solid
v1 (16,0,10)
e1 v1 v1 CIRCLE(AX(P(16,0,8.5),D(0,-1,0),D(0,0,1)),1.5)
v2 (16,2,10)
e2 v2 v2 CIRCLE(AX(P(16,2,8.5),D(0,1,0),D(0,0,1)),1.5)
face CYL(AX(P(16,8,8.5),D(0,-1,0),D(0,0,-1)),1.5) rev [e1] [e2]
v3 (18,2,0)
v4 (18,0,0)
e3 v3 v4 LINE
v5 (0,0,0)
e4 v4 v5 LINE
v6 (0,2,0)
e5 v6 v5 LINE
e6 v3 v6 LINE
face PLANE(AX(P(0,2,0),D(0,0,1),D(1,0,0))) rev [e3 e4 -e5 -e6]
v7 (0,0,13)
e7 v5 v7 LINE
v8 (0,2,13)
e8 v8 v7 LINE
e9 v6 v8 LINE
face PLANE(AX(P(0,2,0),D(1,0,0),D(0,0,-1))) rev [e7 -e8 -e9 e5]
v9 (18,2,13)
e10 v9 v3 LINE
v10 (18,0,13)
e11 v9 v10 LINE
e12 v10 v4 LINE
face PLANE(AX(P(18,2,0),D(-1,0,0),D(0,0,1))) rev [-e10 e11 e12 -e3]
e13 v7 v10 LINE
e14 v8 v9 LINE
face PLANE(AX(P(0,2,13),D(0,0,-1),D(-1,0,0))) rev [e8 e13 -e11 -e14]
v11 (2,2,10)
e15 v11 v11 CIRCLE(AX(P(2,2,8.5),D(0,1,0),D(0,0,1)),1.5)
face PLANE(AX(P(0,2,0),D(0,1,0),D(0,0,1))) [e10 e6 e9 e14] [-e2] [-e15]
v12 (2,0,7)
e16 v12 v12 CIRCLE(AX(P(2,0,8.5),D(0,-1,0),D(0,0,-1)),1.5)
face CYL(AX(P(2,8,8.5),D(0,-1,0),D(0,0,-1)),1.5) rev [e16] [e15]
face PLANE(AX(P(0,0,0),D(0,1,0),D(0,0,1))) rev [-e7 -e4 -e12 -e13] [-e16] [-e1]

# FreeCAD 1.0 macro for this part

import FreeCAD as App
import Part
import Sketcher
from FreeCAD import Vector
Q = App.Units.Quantity

doc = App.newDocument("Part")
body = doc.addObject("PartDesign::Body", "Body")

sketch1 = body.newObject("Sketcher::SketchObject", "Sketch")
sketch1.AttachmentSupport = (doc.getObject("XZ_Plane"), [""])
sketch1.MapMode = "FlatFace"
sketch1.addGeometry([
    Part.LineSegment(Vector(0, 0, 0), Vector(0, 13, 0)),
    Part.LineSegment(Vector(0, 13, 0), Vector(18, 13, 0)),
    Part.LineSegment(Vector(18, 13, 0), Vector(18, 0, 0)),
    Part.LineSegment(Vector(18, 0, 0), Vector(0, 0, 0)),
], False)
sketch1.addConstraint([
    Sketcher.Constraint("Coincident", 0, 2, 1, 1),
    Sketcher.Constraint("Coincident", 1, 2, 2, 1),
    Sketcher.Constraint("Coincident", 2, 2, 3, 1),
    Sketcher.Constraint("Coincident", 3, 2, 0, 1),
    Sketcher.Constraint("Vertical", 0),
    Sketcher.Constraint("Horizontal", 1),
    Sketcher.Constraint("Vertical", 2),
    Sketcher.Constraint("Horizontal", 3),
    Sketcher.Constraint("Coincident", 3, 2, -1, 1),
    Sketcher.Constraint("DistanceX", 1, 1, 1, 2, Q("18 mm")),
    Sketcher.Constraint("DistanceY", 0, 1, 0, 2, Q("13 mm")),
])
pad1 = body.newObject("PartDesign::Pad", "Pad")
pad1.Profile = sketch1
pad1.Length = 2
pad1.Reversed = True

sketch2 = body.newObject("Sketcher::SketchObject", "Sketch001")
sketch2.AttachmentSupport = (doc.getObject("XZ_Plane"), [""])
sketch2.MapMode = "FlatFace"
sketch2.addGeometry([
    Part.Circle(Vector(2, 8.5, 0), Vector(0, 0, 1), 1.5),
    Part.Circle(Vector(16, 8.5, 0), Vector(0, 0, 1), 1.5),
], False)
sketch2.addConstraint([
    Sketcher.Constraint("Equal", 0, 1),
    Sketcher.Constraint("Horizontal", 0, 3, 1, 3),
    Sketcher.Constraint("Diameter", 0, Q("3 mm")),
    Sketcher.Constraint("DistanceX", -1, 1, 0, 3, Q("2 mm")),
    Sketcher.Constraint("DistanceX", -1, 1, 1, 3, Q("16 mm")),
    Sketcher.Constraint("DistanceY", -1, 1, 0, 3, Q("8.5 mm")),
])
pocket1 = body.newObject("PartDesign::Pocket", "Pocket")
pocket1.Profile = sketch2
pocket1.Length = 8

doc.recompute()
